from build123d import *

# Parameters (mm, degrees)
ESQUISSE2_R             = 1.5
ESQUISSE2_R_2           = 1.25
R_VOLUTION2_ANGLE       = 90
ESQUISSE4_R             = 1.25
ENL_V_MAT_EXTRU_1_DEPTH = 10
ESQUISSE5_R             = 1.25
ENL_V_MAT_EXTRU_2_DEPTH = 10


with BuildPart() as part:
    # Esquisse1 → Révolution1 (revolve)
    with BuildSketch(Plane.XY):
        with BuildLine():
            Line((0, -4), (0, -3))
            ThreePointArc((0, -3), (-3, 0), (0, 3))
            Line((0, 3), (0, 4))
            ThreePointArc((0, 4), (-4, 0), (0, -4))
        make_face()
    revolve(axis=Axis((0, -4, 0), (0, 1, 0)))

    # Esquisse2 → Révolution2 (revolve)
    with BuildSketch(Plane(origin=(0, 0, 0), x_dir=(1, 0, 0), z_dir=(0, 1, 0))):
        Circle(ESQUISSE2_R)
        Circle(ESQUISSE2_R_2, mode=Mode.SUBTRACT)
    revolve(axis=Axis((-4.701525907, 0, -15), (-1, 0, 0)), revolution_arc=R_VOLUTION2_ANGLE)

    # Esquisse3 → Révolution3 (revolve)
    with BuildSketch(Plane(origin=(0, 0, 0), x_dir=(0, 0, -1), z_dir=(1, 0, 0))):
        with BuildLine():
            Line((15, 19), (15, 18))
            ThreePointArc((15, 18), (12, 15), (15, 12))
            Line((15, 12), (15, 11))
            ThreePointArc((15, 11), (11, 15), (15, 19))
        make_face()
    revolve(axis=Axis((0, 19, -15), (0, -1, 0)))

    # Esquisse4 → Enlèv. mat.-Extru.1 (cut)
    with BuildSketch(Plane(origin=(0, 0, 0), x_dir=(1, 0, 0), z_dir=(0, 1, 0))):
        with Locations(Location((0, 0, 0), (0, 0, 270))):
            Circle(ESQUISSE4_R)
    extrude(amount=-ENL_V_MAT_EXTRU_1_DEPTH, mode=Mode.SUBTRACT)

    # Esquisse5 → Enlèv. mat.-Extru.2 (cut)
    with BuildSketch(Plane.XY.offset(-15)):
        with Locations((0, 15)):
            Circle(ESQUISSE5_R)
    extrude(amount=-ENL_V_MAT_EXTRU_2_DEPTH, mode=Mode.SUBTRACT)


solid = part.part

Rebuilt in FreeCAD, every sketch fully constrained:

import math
import FreeCAD as App
import Part
import Sketcher
Q = App.Units.Quantity

doc = App.newDocument("Part")
body = doc.addObject("PartDesign::Body", "Body")

sketch1 = body.newObject("Sketcher::SketchObject", "Sketch")
sketch1.AttachmentSupport = (doc.getObject("XY_Plane"), [""])
sketch1.MapMode = "FlatFace"
sketch1.addGeometry([
    Part.LineSegment(App.Vector(0, -4, 0), App.Vector(0, -3, 0)),
    Part.ArcOfCircle(Part.Circle(App.Vector(0, 0, 0), App.Vector(0, 0, 1), 3), math.radians(90), math.radians(270)),
    Part.LineSegment(App.Vector(0, 3, 0), App.Vector(0, 4, 0)),
    Part.ArcOfCircle(Part.Circle(App.Vector(0, 0, 0), App.Vector(0, 0, 1), 4), math.radians(90), math.radians(270)),
], False)
sketch1.addConstraint([
    Sketcher.Constraint("Coincident", 0, 2, 1, 2),
    Sketcher.Constraint("Coincident", 1, 1, 2, 1),
    Sketcher.Constraint("Coincident", 2, 2, 3, 1),
    Sketcher.Constraint("Coincident", 3, 2, 0, 1),
    Sketcher.Constraint("Vertical", 0),
    Sketcher.Constraint("Vertical", 2),
    Sketcher.Constraint("Coincident", 1, 3, -1, 1),
    Sketcher.Constraint("Coincident", 3, 3, -1, 1),
    Sketcher.Constraint("PointOnObject", 0, 2, -2),
    Sketcher.Constraint("PointOnObject", 1, 1, -2),
    Sketcher.Constraint("Radius", 1, Q("3 mm")),
    Sketcher.Constraint("Radius", 3, Q("4 mm")),
])
revolution = body.newObject("PartDesign::Revolution", "Revolution")
revolution.Profile = sketch1
revolution.ReferenceAxis = (sketch1, ["V_Axis"])
revolution.Angle = 360

sketch2 = body.newObject("Sketcher::SketchObject", "Sketch001")
sketch2.AttachmentSupport = (doc.getObject("XZ_Plane"), [""])
sketch2.MapMode = "FlatFace"
sketch2.addGeometry([
    Part.Circle(App.Vector(0, 0, 0), App.Vector(0, 0, 1), 1.5),
    Part.Circle(App.Vector(0, 0, 0), App.Vector(0, 0, 1), 1.2),
], False)
sketch2.addGeometry(Part.LineSegment(App.Vector(0, -15, 0), App.Vector(-10, -15, 0)), True)
sketch2.addConstraint([
    Sketcher.Constraint("Horizontal", 2),
    Sketcher.Constraint("Coincident", 0, 3, -1, 1),
    Sketcher.Constraint("Coincident", 1, 3, -1, 1),
    Sketcher.Constraint("PointOnObject", 2, 1, -2),
    Sketcher.Constraint("Diameter", 0, Q("3 mm")),
    Sketcher.Constraint("Diameter", 1, Q("2.5 mm")),
    Sketcher.Constraint("DistanceX", 2, 2, 2, 1, Q("10 mm")),
    Sketcher.Constraint("DistanceY", 2, 1, -1, 1, Q("15 mm")),
])
revolution2 = body.newObject("PartDesign::Revolution", "Revolution001")
revolution2.Profile = sketch2
revolution2.ReferenceAxis = (sketch2, ["Axis0"])
revolution2.Angle = 90

sketch3 = body.newObject("Sketcher::SketchObject", "Sketch002")
sketch3.AttachmentSupport = (doc.getObject("YZ_Plane"), [""])
sketch3.MapMode = "FlatFace"
sketch3.addGeometry([
    Part.LineSegment(App.Vector(18, -15, 0), App.Vector(19, -15, 0)),
    Part.ArcOfCircle(Part.Circle(App.Vector(15, -15, 0), App.Vector(0, 0, 1), 4), math.radians(0), math.radians(180)),
    Part.LineSegment(App.Vector(11, -15, 0), App.Vector(12, -15, 0)),
    Part.ArcOfCircle(Part.Circle(App.Vector(15, -15, 0), App.Vector(0, 0, 1), 3), math.radians(0), math.radians(180)),
], False)
sketch3.addGeometry(Part.LineSegment(App.Vector(19, -15, 0), App.Vector(11, -15, 0)), True)
sketch3.addConstraint([
    Sketcher.Constraint("Coincident", 0, 2, 1, 1),
    Sketcher.Constraint("Coincident", 1, 2, 2, 1),
    Sketcher.Constraint("Coincident", 2, 2, 3, 2),
    Sketcher.Constraint("Coincident", 3, 1, 0, 1),
    Sketcher.Constraint("Horizontal", 0),
    Sketcher.Constraint("Horizontal", 2),
    Sketcher.Constraint("Horizontal", 4),
    Sketcher.Constraint("Coincident", 3, 3, 1, 3),
    Sketcher.Constraint("Coincident", 4, 1, 0, 2),
    Sketcher.Constraint("Coincident", 4, 2, 1, 2),
    Sketcher.Constraint("Horizontal", 3, 3, 0, 2),
    Sketcher.Constraint("Radius", 1, Q("4 mm")),
    Sketcher.Constraint("Radius", 3, Q("3 mm")),
    Sketcher.Constraint("DistanceX", -1, 1, 1, 3, Q("15 mm")),
    Sketcher.Constraint("DistanceY", 1, 3, -1, 1, Q("15 mm")),
])
revolution3 = body.newObject("PartDesign::Revolution", "Revolution002")
revolution3.Profile = sketch3
revolution3.ReferenceAxis = (sketch3, ["Axis0"])
revolution3.Angle = 360

sketch4 = body.newObject("Sketcher::SketchObject", "Sketch003")
sketch4.AttachmentSupport = (doc.getObject("XZ_Plane"), [""])
sketch4.MapMode = "FlatFace"
sketch4.addGeometry(Part.Circle(App.Vector(0, 0, 0), App.Vector(0, 0, 1), 1.2), False)
sketch4.addConstraint([
    Sketcher.Constraint("Coincident", 0, 3, -1, 1),
    Sketcher.Constraint("Diameter", 0, Q("2.5 mm")),
])
pocket1 = body.newObject("PartDesign::Pocket", "Pocket")
pocket1.Profile = sketch4
pocket1.Length = 10
pocket1.Reversed = True

sketch5 = body.newObject("Sketcher::SketchObject", "Sketch004")
sketch5.AttachmentSupport = (doc.getObject("XY_Plane"), [""])
sketch5.MapMode = "FlatFace"
sketch5.AttachmentOffset = App.Placement(App.Vector(0, 0, -15), App.Rotation())
sketch5.addGeometry(Part.Circle(App.Vector(0, 15, 0), App.Vector(0, 0, 1), 1.2), False)
sketch5.addConstraint([
    Sketcher.Constraint("PointOnObject", 0, 3, -2),
    Sketcher.Constraint("Diameter", 0, Q("2.5 mm")),
    Sketcher.Constraint("DistanceY", -1, 1, 0, 3, Q("15 mm")),
])
pocket2 = body.newObject("PartDesign::Pocket", "Pocket001")
pocket2.Profile = sketch5
pocket2.Length = 10

doc.recompute()
